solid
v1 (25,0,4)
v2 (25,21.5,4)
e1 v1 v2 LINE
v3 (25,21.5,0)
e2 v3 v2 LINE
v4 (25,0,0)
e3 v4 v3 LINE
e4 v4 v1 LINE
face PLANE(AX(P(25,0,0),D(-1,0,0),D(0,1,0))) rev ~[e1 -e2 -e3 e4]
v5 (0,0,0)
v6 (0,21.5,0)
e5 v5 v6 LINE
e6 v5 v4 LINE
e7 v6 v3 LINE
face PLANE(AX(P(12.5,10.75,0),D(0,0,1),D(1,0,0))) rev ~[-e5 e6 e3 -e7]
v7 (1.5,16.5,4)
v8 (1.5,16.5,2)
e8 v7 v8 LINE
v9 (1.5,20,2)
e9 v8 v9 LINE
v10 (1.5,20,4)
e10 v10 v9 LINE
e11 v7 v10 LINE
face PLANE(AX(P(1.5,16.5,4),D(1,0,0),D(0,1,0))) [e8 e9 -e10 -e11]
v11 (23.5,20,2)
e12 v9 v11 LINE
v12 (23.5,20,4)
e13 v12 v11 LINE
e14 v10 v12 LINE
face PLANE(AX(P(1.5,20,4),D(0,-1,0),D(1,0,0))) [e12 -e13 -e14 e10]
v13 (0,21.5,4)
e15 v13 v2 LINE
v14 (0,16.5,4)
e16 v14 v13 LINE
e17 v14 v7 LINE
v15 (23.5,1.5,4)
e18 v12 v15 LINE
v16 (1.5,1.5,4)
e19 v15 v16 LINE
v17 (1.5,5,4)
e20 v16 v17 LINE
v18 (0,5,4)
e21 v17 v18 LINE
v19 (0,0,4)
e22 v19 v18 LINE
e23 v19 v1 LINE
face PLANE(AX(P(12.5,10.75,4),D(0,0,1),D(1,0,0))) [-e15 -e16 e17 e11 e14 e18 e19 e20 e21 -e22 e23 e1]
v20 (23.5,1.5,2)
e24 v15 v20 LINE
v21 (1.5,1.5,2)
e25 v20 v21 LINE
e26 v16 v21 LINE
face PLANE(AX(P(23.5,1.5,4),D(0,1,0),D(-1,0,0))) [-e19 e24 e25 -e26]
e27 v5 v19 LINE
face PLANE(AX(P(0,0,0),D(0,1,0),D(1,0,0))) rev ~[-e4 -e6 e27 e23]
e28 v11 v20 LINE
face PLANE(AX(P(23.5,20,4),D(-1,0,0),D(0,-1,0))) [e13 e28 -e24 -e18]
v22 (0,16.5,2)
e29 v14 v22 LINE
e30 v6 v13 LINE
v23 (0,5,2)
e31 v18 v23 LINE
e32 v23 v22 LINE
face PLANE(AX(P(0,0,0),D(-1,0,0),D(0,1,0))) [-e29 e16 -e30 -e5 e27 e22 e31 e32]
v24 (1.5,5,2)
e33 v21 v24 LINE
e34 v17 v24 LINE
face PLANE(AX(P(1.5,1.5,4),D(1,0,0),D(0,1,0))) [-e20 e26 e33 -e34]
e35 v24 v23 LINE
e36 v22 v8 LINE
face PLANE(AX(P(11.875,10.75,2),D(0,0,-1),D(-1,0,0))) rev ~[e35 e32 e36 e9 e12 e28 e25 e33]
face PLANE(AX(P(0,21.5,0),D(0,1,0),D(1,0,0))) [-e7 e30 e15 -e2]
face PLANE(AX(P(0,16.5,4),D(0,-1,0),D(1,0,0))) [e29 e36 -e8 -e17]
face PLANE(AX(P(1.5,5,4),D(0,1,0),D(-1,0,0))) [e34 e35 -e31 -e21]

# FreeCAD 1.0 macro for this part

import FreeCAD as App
import Part
import Sketcher
Q = App.Units.Quantity

doc = App.newDocument("Part")
body = doc.addObject("PartDesign::Body", "Body")

sketch1 = doc.addObject("Sketcher::SketchObject", "Sketch")
body.addObject(sketch1)
sketch1.AttachmentSupport = (doc.XY_Plane, [""])
sketch1.MapMode = "FlatFace"
sketch1.addGeometry([
    Part.LineSegment(App.Vector(0, 21.5, 0), App.Vector(0, 0, 0)),
    Part.LineSegment(App.Vector(0, 0, 0), App.Vector(25, 0, 0)),
    Part.LineSegment(App.Vector(25, 0, 0), App.Vector(25, 21.5, 0)),
    Part.LineSegment(App.Vector(25, 21.5, 0), App.Vector(0, 21.5, 0)),
], False)
sketch1.addConstraint([
    Sketcher.Constraint("Coincident", 0, 2, 1, 1),
    Sketcher.Constraint("Coincident", 1, 2, 2, 1),
    Sketcher.Constraint("Coincident", 2, 2, 3, 1),
    Sketcher.Constraint("Coincident", 3, 2, 0, 1),
    Sketcher.Constraint("Vertical", 0),
    Sketcher.Constraint("Horizontal", 1),
    Sketcher.Constraint("Vertical", 2),
    Sketcher.Constraint("Horizontal", 3),
    Sketcher.Constraint("Coincident", 0, 2, -1, 1),
    Sketcher.Constraint("DistanceX", 1, 1, 1, 2, Q("25 mm")),
    Sketcher.Constraint("DistanceY", 0, 2, 0, 1, Q("21.5 mm")),
])
pad1 = doc.addObject("PartDesign::Pad", "Pad")
body.addObject(pad1)
pad1.Profile = sketch1
pad1.Length = 4

sketch2 = doc.addObject("Sketcher::SketchObject", "Sketch001")
body.addObject(sketch2)
sketch2.AttachmentSupport = (doc.XY_Plane, [""])
sketch2.MapMode = "FlatFace"
sketch2.AttachmentOffset = App.Placement(App.Vector(0, 0, 4), App.Rotation())
sketch2.addGeometry([
    Part.LineSegment(App.Vector(23.5, 20, 0), App.Vector(1.5, 20, 0)),
    Part.LineSegment(App.Vector(1.5, 20, 0), App.Vector(1.5, 16.5, 0)),
    Part.LineSegment(App.Vector(1.5, 16.5, 0), App.Vector(0, 16.5, 0)),
    Part.LineSegment(App.Vector(0, 16.5, 0), App.Vector(0, 5, 0)),
    Part.LineSegment(App.Vector(0, 5, 0), App.Vector(1.5, 5, 0)),
    Part.LineSegment(App.Vector(1.5, 5, 0), App.Vector(1.5, 1.5, 0)),
    Part.LineSegment(App.Vector(1.5, 1.5, 0), App.Vector(23.5, 1.5, 0)),
    Part.LineSegment(App.Vector(23.5, 1.5, 0), App.Vector(23.5, 20, 0)),
], False)
sketch2.addConstraint([
    Sketcher.Constraint("Coincident", 0, 2, 1, 1),
    Sketcher.Constraint("Coincident", 1, 2, 2, 1),
    Sketcher.Constraint("Coincident", 2, 2, 3, 1),
    Sketcher.Constraint("Coincident", 3, 2, 4, 1),
    Sketcher.Constraint("Coincident", 4, 2, 5, 1),
    Sketcher.Constraint("Coincident", 5, 2, 6, 1),
    Sketcher.Constraint("Coincident", 6, 2, 7, 1),
    Sketcher.Constraint("Coincident", 7, 2, 0, 1),
    Sketcher.Constraint("Horizontal", 0),
    Sketcher.Constraint("Vertical", 1),
    Sketcher.Constraint("Horizontal", 2),
    Sketcher.Constraint("Vertical", 3),
    Sketcher.Constraint("Horizontal", 4),
    Sketcher.Constraint("Vertical", 5),
    Sketcher.Constraint("Horizontal", 6),
    Sketcher.Constraint("Vertical", 7),
    Sketcher.Constraint("PointOnObject", 2, 2, -2),
    Sketcher.Constraint("Vertical", 1, 2, 4, 2),
    Sketcher.Constraint("Equal", 1, 5),
    Sketcher.Constraint("DistanceX", 0, 2, 0, 1, Q("22 mm")),
    Sketcher.Constraint("DistanceX", 2, 2, 2, 1, Q("1.5 mm")),
    Sketcher.Constraint("DistanceY", 1, 2, 1, 1, Q("3.5 mm")),
    Sketcher.Constraint("DistanceY", 3, 2, 3, 1, Q("11.5 mm")),
    Sketcher.Constraint("DistanceY", -1, 1, 0, 2, Q("20 mm")),
])
pocket1 = doc.addObject("PartDesign::Pocket", "Pocket")
body.addObject(pocket1)
pocket1.Profile = sketch2
pocket1.Length = 2

doc.recompute()
